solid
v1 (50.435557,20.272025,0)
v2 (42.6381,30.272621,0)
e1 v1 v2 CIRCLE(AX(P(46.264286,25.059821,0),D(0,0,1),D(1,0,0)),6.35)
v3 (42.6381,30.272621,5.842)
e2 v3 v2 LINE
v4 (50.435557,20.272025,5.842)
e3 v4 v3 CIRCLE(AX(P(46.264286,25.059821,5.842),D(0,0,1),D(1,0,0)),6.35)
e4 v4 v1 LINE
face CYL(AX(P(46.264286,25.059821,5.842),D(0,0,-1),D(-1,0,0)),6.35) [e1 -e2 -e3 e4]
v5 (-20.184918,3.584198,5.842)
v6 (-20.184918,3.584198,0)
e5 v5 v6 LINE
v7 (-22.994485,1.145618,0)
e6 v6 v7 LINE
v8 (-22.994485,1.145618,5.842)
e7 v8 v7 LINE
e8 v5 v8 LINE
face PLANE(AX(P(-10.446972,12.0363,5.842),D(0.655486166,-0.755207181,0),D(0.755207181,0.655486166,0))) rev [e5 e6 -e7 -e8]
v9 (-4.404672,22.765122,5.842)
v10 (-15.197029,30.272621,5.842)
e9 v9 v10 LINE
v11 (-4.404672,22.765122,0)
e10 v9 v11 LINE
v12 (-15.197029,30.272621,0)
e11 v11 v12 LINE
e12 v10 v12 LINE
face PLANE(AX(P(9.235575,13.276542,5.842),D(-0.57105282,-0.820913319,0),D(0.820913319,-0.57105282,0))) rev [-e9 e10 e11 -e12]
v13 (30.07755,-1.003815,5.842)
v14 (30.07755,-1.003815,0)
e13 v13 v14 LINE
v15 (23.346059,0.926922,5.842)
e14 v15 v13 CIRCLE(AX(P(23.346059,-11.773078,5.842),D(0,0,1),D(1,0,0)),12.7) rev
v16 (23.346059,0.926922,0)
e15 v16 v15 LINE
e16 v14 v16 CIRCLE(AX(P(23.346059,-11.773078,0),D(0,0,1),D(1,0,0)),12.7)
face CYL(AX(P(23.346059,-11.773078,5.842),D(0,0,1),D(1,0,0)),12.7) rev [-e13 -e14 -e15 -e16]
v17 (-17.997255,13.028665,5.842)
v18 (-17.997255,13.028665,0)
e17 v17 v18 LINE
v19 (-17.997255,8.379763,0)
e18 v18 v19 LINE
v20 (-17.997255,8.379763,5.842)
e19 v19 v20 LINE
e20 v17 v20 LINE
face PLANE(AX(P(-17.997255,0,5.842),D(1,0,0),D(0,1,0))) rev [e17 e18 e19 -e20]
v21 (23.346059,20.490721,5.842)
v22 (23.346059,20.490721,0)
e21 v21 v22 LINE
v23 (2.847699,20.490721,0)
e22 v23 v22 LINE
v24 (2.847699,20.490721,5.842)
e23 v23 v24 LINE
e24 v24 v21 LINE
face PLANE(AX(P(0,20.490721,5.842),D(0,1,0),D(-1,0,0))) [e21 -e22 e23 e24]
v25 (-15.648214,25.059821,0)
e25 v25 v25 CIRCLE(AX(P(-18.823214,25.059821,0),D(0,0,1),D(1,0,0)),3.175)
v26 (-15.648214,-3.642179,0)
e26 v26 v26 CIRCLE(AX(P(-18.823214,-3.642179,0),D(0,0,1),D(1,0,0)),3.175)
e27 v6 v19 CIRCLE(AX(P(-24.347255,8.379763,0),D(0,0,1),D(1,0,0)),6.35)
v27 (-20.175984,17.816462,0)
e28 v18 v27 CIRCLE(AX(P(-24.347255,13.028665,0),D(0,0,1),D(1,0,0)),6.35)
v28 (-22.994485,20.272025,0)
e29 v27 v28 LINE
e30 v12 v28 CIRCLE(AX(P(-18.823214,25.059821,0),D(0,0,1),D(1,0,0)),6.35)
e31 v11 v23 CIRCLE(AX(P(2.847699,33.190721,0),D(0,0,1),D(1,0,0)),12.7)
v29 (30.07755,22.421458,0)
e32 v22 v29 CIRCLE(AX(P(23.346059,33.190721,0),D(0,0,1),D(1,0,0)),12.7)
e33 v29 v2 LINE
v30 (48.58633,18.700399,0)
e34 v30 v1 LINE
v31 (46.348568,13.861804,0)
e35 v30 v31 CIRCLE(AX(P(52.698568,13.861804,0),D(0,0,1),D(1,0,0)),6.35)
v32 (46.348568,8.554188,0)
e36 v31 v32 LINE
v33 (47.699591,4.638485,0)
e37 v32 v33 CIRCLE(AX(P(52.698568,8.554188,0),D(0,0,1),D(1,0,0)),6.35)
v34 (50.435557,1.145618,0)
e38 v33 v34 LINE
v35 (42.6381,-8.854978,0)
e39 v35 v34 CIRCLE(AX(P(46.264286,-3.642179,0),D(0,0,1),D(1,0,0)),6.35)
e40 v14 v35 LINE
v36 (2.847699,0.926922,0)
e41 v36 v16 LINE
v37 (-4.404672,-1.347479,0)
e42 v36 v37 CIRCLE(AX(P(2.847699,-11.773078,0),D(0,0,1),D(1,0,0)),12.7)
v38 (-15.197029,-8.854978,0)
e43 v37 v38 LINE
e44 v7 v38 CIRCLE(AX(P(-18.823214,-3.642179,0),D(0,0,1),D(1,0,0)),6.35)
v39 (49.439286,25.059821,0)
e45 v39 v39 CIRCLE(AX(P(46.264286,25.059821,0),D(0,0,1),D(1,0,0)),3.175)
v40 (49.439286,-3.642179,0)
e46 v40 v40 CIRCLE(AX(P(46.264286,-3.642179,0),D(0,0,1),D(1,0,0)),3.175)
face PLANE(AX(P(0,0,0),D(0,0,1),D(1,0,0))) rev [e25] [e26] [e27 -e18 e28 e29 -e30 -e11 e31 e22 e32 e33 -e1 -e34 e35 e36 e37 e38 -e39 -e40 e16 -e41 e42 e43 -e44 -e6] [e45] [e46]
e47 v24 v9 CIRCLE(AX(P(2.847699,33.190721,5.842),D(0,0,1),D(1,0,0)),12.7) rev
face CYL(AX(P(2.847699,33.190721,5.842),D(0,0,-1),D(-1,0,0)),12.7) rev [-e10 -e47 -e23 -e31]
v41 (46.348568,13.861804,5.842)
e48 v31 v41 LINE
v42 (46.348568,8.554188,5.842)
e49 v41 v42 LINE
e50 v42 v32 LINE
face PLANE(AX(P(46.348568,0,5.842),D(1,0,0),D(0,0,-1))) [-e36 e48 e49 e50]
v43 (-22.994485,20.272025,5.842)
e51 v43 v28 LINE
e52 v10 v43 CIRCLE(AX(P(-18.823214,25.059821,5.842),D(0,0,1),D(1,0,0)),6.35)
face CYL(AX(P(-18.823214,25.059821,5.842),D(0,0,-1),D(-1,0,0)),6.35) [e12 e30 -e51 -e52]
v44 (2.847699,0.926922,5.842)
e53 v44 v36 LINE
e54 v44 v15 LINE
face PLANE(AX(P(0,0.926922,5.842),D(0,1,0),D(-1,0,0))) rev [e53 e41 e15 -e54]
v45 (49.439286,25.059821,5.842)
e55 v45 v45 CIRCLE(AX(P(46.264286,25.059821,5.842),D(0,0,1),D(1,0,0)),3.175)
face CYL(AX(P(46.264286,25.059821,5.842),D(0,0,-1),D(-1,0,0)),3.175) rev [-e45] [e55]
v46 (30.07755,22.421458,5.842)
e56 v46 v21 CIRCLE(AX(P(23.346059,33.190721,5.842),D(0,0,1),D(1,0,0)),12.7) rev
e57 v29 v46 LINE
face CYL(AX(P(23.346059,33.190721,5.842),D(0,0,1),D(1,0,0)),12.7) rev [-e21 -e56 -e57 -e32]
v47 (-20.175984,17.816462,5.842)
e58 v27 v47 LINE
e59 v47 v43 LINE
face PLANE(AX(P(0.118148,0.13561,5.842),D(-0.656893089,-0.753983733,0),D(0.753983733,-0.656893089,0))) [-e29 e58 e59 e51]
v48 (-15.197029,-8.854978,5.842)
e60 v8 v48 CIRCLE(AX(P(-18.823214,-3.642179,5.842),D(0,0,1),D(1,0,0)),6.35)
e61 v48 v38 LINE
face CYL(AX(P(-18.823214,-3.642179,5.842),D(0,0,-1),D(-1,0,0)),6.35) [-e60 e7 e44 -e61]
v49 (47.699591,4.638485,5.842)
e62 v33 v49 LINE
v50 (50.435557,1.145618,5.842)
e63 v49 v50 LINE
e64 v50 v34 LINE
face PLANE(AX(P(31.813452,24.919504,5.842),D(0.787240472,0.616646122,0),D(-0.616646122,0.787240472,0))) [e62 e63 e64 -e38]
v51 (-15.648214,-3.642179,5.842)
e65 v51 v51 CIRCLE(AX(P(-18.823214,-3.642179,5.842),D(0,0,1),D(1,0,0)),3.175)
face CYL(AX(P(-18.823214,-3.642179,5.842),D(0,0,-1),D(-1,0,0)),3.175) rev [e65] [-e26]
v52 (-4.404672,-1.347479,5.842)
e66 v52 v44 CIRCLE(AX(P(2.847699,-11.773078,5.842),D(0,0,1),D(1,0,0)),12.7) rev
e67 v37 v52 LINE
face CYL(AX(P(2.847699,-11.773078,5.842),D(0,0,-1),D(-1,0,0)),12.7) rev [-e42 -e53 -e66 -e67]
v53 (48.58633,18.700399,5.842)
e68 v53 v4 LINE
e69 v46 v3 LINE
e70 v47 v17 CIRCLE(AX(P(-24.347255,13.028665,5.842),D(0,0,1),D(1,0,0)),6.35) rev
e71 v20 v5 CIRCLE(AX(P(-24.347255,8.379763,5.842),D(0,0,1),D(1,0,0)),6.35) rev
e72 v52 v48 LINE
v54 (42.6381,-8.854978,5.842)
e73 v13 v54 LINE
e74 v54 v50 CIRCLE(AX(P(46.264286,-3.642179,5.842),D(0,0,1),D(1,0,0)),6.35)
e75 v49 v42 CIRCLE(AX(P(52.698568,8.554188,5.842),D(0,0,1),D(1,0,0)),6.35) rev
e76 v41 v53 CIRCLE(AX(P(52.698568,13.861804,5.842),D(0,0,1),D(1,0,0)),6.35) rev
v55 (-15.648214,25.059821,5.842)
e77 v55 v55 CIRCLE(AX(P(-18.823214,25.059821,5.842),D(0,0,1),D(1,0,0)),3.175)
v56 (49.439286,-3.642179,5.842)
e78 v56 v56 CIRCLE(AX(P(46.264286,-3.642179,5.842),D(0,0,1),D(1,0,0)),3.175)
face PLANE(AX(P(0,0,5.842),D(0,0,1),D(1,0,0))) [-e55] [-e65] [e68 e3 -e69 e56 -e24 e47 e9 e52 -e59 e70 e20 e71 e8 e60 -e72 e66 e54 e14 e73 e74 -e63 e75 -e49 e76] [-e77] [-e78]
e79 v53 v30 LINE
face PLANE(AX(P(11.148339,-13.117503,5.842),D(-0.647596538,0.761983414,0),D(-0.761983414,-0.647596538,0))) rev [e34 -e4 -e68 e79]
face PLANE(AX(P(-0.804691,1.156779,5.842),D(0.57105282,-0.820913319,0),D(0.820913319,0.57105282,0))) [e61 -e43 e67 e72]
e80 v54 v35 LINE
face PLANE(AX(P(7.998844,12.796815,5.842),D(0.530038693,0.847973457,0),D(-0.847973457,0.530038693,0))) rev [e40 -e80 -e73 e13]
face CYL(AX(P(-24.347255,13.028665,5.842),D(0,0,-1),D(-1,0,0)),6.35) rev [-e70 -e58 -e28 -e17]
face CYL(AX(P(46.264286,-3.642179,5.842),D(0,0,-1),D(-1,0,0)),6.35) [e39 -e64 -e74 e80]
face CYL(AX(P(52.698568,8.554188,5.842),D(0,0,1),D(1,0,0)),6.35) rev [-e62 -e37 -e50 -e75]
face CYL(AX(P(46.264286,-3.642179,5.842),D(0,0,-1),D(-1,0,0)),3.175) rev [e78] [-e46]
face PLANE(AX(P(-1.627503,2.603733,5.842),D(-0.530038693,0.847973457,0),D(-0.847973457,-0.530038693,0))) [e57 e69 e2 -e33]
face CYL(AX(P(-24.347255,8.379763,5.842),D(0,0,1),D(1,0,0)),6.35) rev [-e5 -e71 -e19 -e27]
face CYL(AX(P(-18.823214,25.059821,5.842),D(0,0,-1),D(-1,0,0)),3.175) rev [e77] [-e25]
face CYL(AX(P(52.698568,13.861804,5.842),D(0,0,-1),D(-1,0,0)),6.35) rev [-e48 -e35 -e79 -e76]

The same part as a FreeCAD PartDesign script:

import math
import FreeCAD as App
import Part
import Sketcher

V = App.Vector
Q = App.Units.Quantity


def edges_at(feature, points):
    """Names of the edges that pass closest to the given points."""
    edges = feature.Shape.Edges
    near = lambda p: min(range(len(edges)), key=lambda i: edges[i].distToShape(Part.Vertex(*p))[0])
    return sorted({f"Edge{near(p) + 1}" for p in points})

doc = App.newDocument("Part")
body = doc.addObject("PartDesign::Body", "Body")

sketch1 = body.newObject("Sketcher::SketchObject", "Sketch")
sketch1.AttachmentSupport = (doc.getObject("XY_Plane"), [""])
sketch1.MapMode = "FlatFace"
sketch1.addGeometry([
    Part.LineSegment(V(-23, 20.3, 0), V(-18, 15.9, 0)),
    Part.LineSegment(V(-18, 15.9, 0), V(-18, 5.5, 0)),
    Part.LineSegment(V(-18, 5.5, 0), V(-23, 1.1, 0)),
    Part.ArcOfCircle(Part.Circle(V(-18.8, -3.6, 0), V(0, 0, 1), 6.4), math.radians(131), math.radians(180)),
    Part.ArcOfCircle(Part.Circle(V(-18.8, -3.6, 0), V(0, 0, 1), 6.3), math.radians(180), math.radians(305)),
    Part.LineSegment(V(-15.2, -8.9, 0), V(-1.1, 0.9, 0)),
    Part.LineSegment(V(-1.1, 0.9, 0), V(27, 0.9, 0)),
    Part.LineSegment(V(27, 0.9, 0), V(42.6, -8.9, 0)),
    Part.ArcOfCircle(Part.Circle(V(46.3, -3.6, 0), V(0, 0, 1), 6.3), math.radians(-125), math.radians(0)),
    Part.ArcOfCircle(Part.Circle(V(46.3, -3.6, 0), V(0, 0, 1), 6.3), math.radians(0), math.radians(49)),
    Part.LineSegment(V(50.4, 1.1, 0), V(46.3, 6.4, 0)),
    Part.LineSegment(V(46.3, 6.4, 0), V(46.3, 16.8, 0)),
    Part.LineSegment(V(46.3, 16.8, 0), V(50.4, 20.3, 0)),
    Part.ArcOfCircle(Part.Circle(V(46.3, 25.1, 0), V(0, 0, 1), 6.3), math.radians(-49), math.radians(125)),
    Part.LineSegment(V(42.6, 30.3, 0), V(27, 20.5, 0)),
    Part.LineSegment(V(27, 20.5, 0), V(-1.1, 20.5, 0)),
    Part.LineSegment(V(-1.1, 20.5, 0), V(-15.2, 30.3, 0)),
    Part.ArcOfCircle(Part.Circle(V(-18.8, 25.1, 0), V(0, 0, 1), 6.3), math.radians(55), math.radians(229)),
    Part.Circle(V(-18.8, -3.6, 0), V(0, 0, 1), 3.2),
    Part.Circle(V(46.3, -3.6, 0), V(0, 0, 1), 3.2),
    Part.Circle(V(-18.8, 25.1, 0), V(0, 0, 1), 3.2),
    Part.Circle(V(46.3, 25.1, 0), V(0, 0, 1), 3.2),
], False)
sketch1.addConstraint([
    Sketcher.Constraint("Coincident", 0, 2, 1, 1),
    Sketcher.Constraint("Coincident", 1, 2, 2, 1),
    Sketcher.Constraint("Coincident", 2, 2, 3, 1),
    Sketcher.Constraint("Tangent", 3, 2, 4, 1),
    Sketcher.Constraint("Tangent", 4, 2, 5, 1),
    Sketcher.Constraint("Coincident", 5, 2, 6, 1),
    Sketcher.Constraint("Coincident", 6, 2, 7, 1),
    Sketcher.Constraint("Coincident", 7, 2, 8, 1),
    Sketcher.Constraint("Tangent", 8, 2, 9, 1),
    Sketcher.Constraint("Coincident", 9, 2, 10, 1),
    Sketcher.Constraint("Coincident", 10, 2, 11, 1),
    Sketcher.Constraint("Coincident", 11, 2, 12, 1),
    Sketcher.Constraint("Coincident", 12, 2, 13, 1),
    Sketcher.Constraint("Coincident", 13, 2, 14, 1),
    Sketcher.Constraint("Coincident", 14, 2, 15, 1),
    Sketcher.Constraint("Coincident", 15, 2, 16, 1),
    Sketcher.Constraint("Tangent", 16, 2, 17, 1),
    Sketcher.Constraint("Tangent", 17, 2, 0, 1),
    Sketcher.Constraint("Vertical", 1),
    Sketcher.Constraint("Horizontal", 6),
    Sketcher.Constraint("Vertical", 11),
    Sketcher.Constraint("Horizontal", 15),
    Sketcher.Constraint("Coincident", 18, 3, 3, 3),
    Sketcher.Constraint("Coincident", 19, 3, 8, 3),
    Sketcher.Constraint("Coincident", 20, 3, 17, 3),
    Sketcher.Constraint("Coincident", 21, 3, 13, 3),
    Sketcher.Constraint("Equal", 3, 4),
    Sketcher.Constraint("Equal", 4, 8),
    Sketcher.Constraint("Equal", 8, 9),
    Sketcher.Constraint("Equal", 9, 13),
    Sketcher.Constraint("Equal", 13, 17),
    Sketcher.Constraint("Equal", 18, 19),
    Sketcher.Constraint("Equal", 19, 20),
    Sketcher.Constraint("Equal", 20, 21),
    Sketcher.Constraint("Horizontal", 4, 3, 8, 3),
    Sketcher.Constraint("Horizontal", 13, 3, 17, 3),
    Sketcher.Constraint("Horizontal", 19, 3, 3, 2),
    Sketcher.Constraint("Horizontal", 4, 2, 7, 2),
    Sketcher.Constraint("Horizontal", 3, 2, 8, 2),
    Sketcher.Constraint("Horizontal", 2, 2, 9, 2),
    Sketcher.Constraint("Horizontal", 13, 2, 16, 2),
    Sketcher.Constraint("Horizontal", 12, 2, 17, 2),
    Sketcher.Constraint("Vertical", 9, 3, 13, 3),
    Sketcher.Constraint("Vertical", 4, 3, 17, 3),
    Sketcher.Constraint("Vertical", 9, 2, 12, 2),
    Sketcher.Constraint("Vertical", 7, 2, 13, 2),
    Sketcher.Constraint("Vertical", 6, 2, 14, 2),
    Sketcher.Constraint("Vertical", 5, 2, 15, 2),
    Sketcher.Constraint("Equal", 1, 11),
    Sketcher.Constraint("Equal", 0, 10),
    Sketcher.Constraint("Diameter", 18, Q("0.25 in")),
    Sketcher.Constraint("Radius", 3, Q("0.25 in")),
    Sketcher.Constraint("DistanceY", 9, 3, 13, 3, Q("1.13 in")),
    Sketcher.Constraint("DistanceX", 3, 3, 8, 3, Q("2.5625 in")),
    Sketcher.Constraint("DistanceX", 14, 2, 11, 2, Q("0.7621998 in")),
    Sketcher.Constraint("DistanceX", -1, 1, 7, 2, 42.6381),
    Sketcher.Constraint("DistanceY", 4, 2, 3, 3, 5.2128),
    Sketcher.Constraint("DistanceY", 4, 2, 5, 2, 9.7819),
    Sketcher.Constraint("Distance", 0, 6.62777),
    Sketcher.Constraint("Distance", 12, 5.363619),
    Sketcher.Constraint("DistanceX", 6, 1, 6, 2, 28.123815),
    Sketcher.Constraint("DistanceY", 1, 2, 1, 1, 10.435297),
    Sketcher.Constraint("DistanceY", 3, 3, -1, 1, 3.642179),
])
pad1 = body.newObject("PartDesign::Pad", "Pad")
pad1.Profile = sketch1
pad1.Length = Q("0.23 in")
doc.recompute()

fillet = body.newObject("PartDesign::Fillet", "Fillet")
fillet.Base = (pad1, edges_at(pad1, [
    (-17.997, 5.483, 2.921),
    (-17.997, 15.918, 2.921),
    (46.349, 16.799, 2.921),
    (46.349, 6.363, 2.921),
]))
fillet.Radius = Q("0.25 in")
doc.recompute()

fillet2 = body.newObject("PartDesign::Fillet", "Fillet001")
fillet2.Base = (fillet, edges_at(fillet, [
    (26.989, 0.927, 2.921),
    (-1.135, 0.927, 2.921),
    (-1.135, 20.491, 2.921),
    (26.989, 20.491, 2.921),
]))
fillet2.Radius = Q("0.5 in")

doc.recompute()
